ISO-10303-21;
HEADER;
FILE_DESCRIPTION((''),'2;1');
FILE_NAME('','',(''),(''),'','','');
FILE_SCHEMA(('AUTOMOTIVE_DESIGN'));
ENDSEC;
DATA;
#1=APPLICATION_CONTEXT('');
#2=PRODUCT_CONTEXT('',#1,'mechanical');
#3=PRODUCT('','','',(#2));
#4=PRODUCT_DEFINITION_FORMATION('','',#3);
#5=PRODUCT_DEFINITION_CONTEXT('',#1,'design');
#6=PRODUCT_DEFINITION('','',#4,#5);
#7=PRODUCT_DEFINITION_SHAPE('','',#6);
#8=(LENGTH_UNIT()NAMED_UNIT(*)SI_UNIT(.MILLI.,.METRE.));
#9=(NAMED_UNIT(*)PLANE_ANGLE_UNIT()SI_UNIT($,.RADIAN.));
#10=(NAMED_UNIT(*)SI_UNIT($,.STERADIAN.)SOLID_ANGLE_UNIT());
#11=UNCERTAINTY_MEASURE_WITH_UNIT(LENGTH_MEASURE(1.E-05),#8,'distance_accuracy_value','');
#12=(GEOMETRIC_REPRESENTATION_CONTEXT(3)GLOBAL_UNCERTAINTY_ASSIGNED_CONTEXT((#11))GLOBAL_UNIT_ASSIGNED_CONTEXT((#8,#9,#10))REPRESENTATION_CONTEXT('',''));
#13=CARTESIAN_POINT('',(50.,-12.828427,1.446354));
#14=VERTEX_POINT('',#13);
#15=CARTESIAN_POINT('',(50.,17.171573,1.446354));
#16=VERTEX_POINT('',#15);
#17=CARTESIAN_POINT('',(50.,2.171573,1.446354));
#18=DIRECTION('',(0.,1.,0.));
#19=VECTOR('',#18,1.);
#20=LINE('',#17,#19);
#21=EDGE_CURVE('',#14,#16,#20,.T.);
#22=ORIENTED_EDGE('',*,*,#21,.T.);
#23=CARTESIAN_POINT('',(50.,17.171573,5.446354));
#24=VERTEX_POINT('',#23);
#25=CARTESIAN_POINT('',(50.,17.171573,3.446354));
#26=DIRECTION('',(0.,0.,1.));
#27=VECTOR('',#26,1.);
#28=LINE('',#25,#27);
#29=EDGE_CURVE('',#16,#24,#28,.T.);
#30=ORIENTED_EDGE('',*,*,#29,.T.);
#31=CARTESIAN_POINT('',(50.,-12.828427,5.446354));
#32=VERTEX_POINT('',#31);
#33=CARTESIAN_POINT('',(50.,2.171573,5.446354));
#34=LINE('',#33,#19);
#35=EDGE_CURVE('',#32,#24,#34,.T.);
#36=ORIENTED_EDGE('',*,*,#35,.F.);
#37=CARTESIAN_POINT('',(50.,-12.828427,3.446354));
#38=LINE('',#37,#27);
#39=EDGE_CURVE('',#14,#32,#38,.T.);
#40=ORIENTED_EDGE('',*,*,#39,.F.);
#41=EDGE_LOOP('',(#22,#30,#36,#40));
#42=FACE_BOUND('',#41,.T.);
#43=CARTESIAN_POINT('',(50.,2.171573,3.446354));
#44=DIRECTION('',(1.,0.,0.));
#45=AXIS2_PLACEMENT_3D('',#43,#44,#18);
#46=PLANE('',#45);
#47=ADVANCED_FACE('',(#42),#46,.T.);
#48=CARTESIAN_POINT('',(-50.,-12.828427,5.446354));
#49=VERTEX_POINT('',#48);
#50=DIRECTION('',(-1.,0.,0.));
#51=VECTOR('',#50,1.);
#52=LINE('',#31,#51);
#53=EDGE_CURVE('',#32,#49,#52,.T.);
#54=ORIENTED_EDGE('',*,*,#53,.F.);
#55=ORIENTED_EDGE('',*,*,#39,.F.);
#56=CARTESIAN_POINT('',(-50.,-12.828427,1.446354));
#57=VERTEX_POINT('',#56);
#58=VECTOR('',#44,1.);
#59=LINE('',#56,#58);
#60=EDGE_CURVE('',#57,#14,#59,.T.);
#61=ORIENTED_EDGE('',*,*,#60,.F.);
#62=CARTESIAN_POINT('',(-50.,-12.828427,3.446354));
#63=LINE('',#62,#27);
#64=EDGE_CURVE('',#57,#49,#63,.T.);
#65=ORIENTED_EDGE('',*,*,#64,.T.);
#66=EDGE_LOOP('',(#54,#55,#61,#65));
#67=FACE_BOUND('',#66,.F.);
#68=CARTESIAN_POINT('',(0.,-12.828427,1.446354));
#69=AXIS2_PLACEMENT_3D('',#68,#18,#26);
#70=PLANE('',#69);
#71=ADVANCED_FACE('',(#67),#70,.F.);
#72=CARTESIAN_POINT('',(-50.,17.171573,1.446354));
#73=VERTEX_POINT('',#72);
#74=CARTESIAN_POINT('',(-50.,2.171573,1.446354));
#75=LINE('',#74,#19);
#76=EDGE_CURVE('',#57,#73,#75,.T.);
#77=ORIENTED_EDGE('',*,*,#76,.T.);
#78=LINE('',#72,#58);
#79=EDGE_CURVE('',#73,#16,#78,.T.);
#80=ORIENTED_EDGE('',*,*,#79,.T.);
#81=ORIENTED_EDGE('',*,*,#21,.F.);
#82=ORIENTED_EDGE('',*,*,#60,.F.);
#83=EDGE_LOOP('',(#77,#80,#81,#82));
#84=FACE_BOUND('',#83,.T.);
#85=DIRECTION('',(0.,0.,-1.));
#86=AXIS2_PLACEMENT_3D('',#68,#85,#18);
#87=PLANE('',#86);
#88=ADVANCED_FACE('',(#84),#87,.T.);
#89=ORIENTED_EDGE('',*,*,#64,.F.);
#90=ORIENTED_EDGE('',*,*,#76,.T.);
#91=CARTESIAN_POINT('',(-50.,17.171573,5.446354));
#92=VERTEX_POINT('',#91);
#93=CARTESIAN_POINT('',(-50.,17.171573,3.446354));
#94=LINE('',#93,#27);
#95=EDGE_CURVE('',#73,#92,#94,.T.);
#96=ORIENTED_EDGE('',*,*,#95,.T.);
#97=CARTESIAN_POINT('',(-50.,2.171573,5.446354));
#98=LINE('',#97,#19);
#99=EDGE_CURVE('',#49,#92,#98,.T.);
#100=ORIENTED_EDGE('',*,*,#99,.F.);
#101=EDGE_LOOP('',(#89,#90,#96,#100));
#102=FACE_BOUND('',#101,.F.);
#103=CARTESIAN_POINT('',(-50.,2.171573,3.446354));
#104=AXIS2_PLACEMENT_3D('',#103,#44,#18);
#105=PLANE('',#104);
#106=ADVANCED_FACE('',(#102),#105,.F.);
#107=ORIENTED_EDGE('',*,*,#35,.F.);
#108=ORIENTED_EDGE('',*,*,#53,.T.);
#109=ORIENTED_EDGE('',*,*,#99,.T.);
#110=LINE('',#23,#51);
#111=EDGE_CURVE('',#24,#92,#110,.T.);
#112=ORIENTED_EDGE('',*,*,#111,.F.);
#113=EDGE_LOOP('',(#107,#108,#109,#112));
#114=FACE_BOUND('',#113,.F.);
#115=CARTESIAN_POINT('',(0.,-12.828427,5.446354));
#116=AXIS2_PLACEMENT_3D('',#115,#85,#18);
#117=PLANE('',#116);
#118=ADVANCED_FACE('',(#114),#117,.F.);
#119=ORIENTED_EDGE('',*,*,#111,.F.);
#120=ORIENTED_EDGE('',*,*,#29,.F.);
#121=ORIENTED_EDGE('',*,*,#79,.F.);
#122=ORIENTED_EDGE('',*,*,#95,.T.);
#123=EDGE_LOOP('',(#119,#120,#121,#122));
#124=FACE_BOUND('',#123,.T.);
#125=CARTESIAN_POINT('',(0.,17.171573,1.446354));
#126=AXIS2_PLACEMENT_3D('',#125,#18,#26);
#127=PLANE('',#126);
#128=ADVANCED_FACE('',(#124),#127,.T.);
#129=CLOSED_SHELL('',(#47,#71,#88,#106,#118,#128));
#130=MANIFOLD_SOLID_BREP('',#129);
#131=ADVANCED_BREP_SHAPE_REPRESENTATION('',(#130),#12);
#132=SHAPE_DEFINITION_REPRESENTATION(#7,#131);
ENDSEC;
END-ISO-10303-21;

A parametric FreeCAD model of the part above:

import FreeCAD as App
import Part
import Sketcher
from FreeCAD import Vector
Q = App.Units.Quantity


def add_polygon(sketch, points):
    """Adds a closed chain of lines whose ends are joined by coincident constraints."""
    first, n = sketch.GeometryCount, len(points)
    for a, b in zip(points, points[1:] + points[:1]):
        sketch.addGeometry(Part.LineSegment(App.Vector(*a, 0), App.Vector(*b, 0)), False)
    for i in range(n):
        sketch.addConstraint(Sketcher.Constraint("Coincident", first + i, 2, first + (i + 1) % n, 1))

doc = App.newDocument("Part")
body = doc.addObject("PartDesign::Body", "Body")

# Sketch on YZ plane
sketch1 = doc.addObject("Sketcher::SketchObject", "Sketch")
body.addObject(sketch1)
sketch1.AttachmentSupport = (doc.YZ_Plane, [""])
sketch1.MapMode = "FlatFace"
add_polygon(sketch1, [(-12.8, 5.4), (-12.8, 1.4), (17.2, 1.4), (17.2, 5.4)])  # lines 0-3
sketch1.addConstraint(Sketcher.Constraint("Vertical", 0))
sketch1.addConstraint(Sketcher.Constraint("Horizontal", 1))
sketch1.addConstraint(Sketcher.Constraint("Vertical", 2))
sketch1.addConstraint(Sketcher.Constraint("Horizontal", 3))
sketch1.addConstraint(Sketcher.Constraint("DistanceX", 1, 1, 1, 2, Q("30 mm")))
sketch1.addConstraint(Sketcher.Constraint("DistanceY", 0, 2, 0, 1, Q("4 mm")))
sketch1.addConstraint(Sketcher.Constraint("DistanceX", 0, 2, -1, 1, Q("12.828427 mm")))
sketch1.addConstraint(Sketcher.Constraint("DistanceY", -1, 1, 0, 2, Q("1.446354 mm")))
pad1 = doc.addObject("PartDesign::Pad", "Pad")
body.addObject(pad1)
pad1.Profile = sketch1
pad1.Type = "TwoLengths"
pad1.Length = 50
pad1.Length2 = 50

doc.recompute()
